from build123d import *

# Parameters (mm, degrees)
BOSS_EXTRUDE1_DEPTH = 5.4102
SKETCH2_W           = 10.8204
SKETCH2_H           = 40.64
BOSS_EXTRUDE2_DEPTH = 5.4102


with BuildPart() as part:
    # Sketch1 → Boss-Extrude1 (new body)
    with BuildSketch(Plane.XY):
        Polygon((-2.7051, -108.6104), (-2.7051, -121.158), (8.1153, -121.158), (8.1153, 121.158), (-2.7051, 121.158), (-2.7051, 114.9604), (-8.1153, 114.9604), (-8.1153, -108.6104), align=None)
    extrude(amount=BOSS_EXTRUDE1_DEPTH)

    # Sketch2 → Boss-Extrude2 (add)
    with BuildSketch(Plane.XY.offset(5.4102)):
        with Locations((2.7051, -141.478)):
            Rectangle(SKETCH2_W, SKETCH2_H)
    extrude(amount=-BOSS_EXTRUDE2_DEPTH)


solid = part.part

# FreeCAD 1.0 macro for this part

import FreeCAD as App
import Part
import Sketcher
from FreeCAD import Vector
Q = App.Units.Quantity

doc = App.newDocument("Part")
body = doc.addObject("PartDesign::Body", "Body")

# Sketch on XY plane
sketch1 = doc.addObject("Sketcher::SketchObject", "Sketch")
body.addObject(sketch1)
sketch1.AttachmentSupport = (doc.XY_Plane, [""])
sketch1.MapMode = "FlatFace"
sketch1.addGeometry([
    Part.LineSegment(Vector(-3, -109, 0), Vector(-3, -121, 0)),  # 0
    Part.LineSegment(Vector(-3, -121, 0), Vector(8, -121, 0)),  # 1
    Part.LineSegment(Vector(8, -121, 0), Vector(8, 121, 0)),  # 2
    Part.LineSegment(Vector(8, 121, 0), Vector(-3, 121, 0)),  # 3
    Part.LineSegment(Vector(-3, 121, 0), Vector(-3, 115, 0)),  # 4
    Part.LineSegment(Vector(-3, 115, 0), Vector(-8, 115, 0)),  # 5
    Part.LineSegment(Vector(-8, 115, 0), Vector(-8, -109, 0)),  # 6
    Part.LineSegment(Vector(-8, -109, 0), Vector(-3, -109, 0)),  # 7
], False)
sketch1.addConstraint([
    Sketcher.Constraint("Coincident", 0, 2, 1, 1),
    Sketcher.Constraint("Coincident", 1, 2, 2, 1),
    Sketcher.Constraint("Coincident", 2, 2, 3, 1),
    Sketcher.Constraint("Coincident", 3, 2, 4, 1),
    Sketcher.Constraint("Coincident", 4, 2, 5, 1),
    Sketcher.Constraint("Coincident", 5, 2, 6, 1),
    Sketcher.Constraint("Coincident", 6, 2, 7, 1),
    Sketcher.Constraint("Coincident", 7, 2, 0, 1),
    Sketcher.Constraint("Vertical", 0),
    Sketcher.Constraint("Horizontal", 1),
    Sketcher.Constraint("Vertical", 2),
    Sketcher.Constraint("Horizontal", 3),
    Sketcher.Constraint("Vertical", 4),
    Sketcher.Constraint("Horizontal", 5),
    Sketcher.Constraint("Vertical", 6),
    Sketcher.Constraint("Horizontal", 7),
    Sketcher.Constraint("Symmetric", 0, 2, 3, 2, -1),
    Sketcher.Constraint("DistanceY", 2, 1, 2, 2, Q("9.54 in")),
    Sketcher.Constraint("DistanceX", 1, 1, 1, 2, Q("0.426 in")),
    Sketcher.Constraint("DistanceX", 5, 2, 5, 1, Q("0.213 in")),
    Sketcher.Constraint("DistanceY", 0, 2, 0, 1, Q("0.494 in")),
    Sketcher.Constraint("DistanceY", 4, 2, 4, 1, Q("0.244 in")),
    Sketcher.Constraint("DistanceX", 0, 2, -1, 1, Q("0.1065 in")),
])
pad1 = doc.addObject("PartDesign::Pad", "Pad")
body.addObject(pad1)
pad1.Profile = sketch1
pad1.Length = Q("0.213 in")

# Sketch on XY plane
sketch2 = doc.addObject("Sketcher::SketchObject", "Sketch001")
body.addObject(sketch2)
sketch2.AttachmentSupport = (doc.XY_Plane, [""])
sketch2.MapMode = "FlatFace"
sketch2.AttachmentOffset = App.Placement(Vector(0, 0, 0.213 * 25.4), App.Rotation())
sketch2.addGeometry([
    Part.LineSegment(Vector(-3, -121, 0), Vector(-3, -162, 0)),
    Part.LineSegment(Vector(-3, -162, 0), Vector(8, -162, 0)),
    Part.LineSegment(Vector(8, -162, 0), Vector(8, -121, 0)),
    Part.LineSegment(Vector(8, -121, 0), Vector(-3, -121, 0)),
], False)
sketch2.addConstraint([
    Sketcher.Constraint("Coincident", 0, 2, 1, 1),
    Sketcher.Constraint("Coincident", 1, 2, 2, 1),
    Sketcher.Constraint("Coincident", 2, 2, 3, 1),
    Sketcher.Constraint("Coincident", 3, 2, 0, 1),
    Sketcher.Constraint("Vertical", 0),
    Sketcher.Constraint("Horizontal", 1),
    Sketcher.Constraint("Vertical", 2),
    Sketcher.Constraint("Horizontal", 3),
    Sketcher.Constraint("DistanceY", 0, 2, 0, 1, Q("1.6 in")),
    Sketcher.Constraint("DistanceX", 1, 1, 1, 2, Q("0.426 in")),
    Sketcher.Constraint("DistanceY", 0, 2, -1, 1, Q("6.37 in")),
    Sketcher.Constraint("DistanceX", 0, 2, -1, 1, Q("0.1065 in")),
])
pad2 = doc.addObject("PartDesign::Pad", "Pad001")
body.addObject(pad2)
pad2.Profile = sketch2
pad2.Length = Q("0.213 in")
pad2.Reversed = True

doc.recompute()
